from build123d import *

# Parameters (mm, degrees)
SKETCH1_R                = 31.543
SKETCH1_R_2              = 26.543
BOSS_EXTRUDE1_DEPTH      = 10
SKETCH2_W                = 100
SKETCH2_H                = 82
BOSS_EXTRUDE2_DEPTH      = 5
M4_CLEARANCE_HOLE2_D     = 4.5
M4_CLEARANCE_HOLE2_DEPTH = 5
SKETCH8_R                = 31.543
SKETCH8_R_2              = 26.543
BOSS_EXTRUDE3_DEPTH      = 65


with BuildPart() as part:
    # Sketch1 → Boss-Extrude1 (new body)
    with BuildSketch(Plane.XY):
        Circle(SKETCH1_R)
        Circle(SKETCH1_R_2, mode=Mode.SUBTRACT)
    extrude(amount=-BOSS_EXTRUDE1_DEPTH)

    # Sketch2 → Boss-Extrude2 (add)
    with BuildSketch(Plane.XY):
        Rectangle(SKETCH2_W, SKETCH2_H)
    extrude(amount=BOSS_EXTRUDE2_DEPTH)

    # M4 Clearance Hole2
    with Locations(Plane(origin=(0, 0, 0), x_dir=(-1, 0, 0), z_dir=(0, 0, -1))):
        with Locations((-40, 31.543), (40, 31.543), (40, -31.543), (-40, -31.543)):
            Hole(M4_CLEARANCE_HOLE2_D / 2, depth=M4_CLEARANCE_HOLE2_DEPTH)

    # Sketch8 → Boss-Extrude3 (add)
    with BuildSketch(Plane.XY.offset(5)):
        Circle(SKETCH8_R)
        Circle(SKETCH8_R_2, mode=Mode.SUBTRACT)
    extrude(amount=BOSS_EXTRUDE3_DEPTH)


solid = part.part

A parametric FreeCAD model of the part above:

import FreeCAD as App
import Part
import Sketcher
from FreeCAD import Vector

doc = App.newDocument("Part")
body = doc.addObject("PartDesign::Body", "Body")

# Sketch on XY plane
sketch1 = body.newObject("Sketcher::SketchObject", "Sketch")
sketch1.AttachmentSupport = (doc.getObject("XY_Plane"), [""])
sketch1.MapMode = "FlatFace"
sketch1.addGeometry(Part.Circle(Vector(0, 0, 0), Vector(0, 0, 1), 32), False)
sketch1.addGeometry(Part.Circle(Vector(0, 0, 0), Vector(0, 0, 1), 27), False)
sketch1.addConstraint(Sketcher.Constraint("Coincident", 0, 3, -1, 1))
sketch1.addConstraint(Sketcher.Constraint("Coincident", 1, 3, -1, 1))
sketch1.addConstraint(Sketcher.Constraint("Diameter", 0, 63.086))
sketch1.addConstraint(Sketcher.Constraint("Diameter", 1, 53.086))
pad1 = body.newObject("PartDesign::Pad", "Pad")
pad1.Profile = sketch1
pad1.Length = 10
pad1.Reversed = True

# Sketch on XY plane
sketch2 = body.newObject("Sketcher::SketchObject", "Sketch001")
sketch2.AttachmentSupport = (doc.getObject("XY_Plane"), [""])
sketch2.MapMode = "FlatFace"
sketch2.addGeometry(Part.LineSegment(Vector(-50, 41, 0), Vector(-50, -41, 0)), False)
sketch2.addGeometry(Part.LineSegment(Vector(-50, -41, 0), Vector(50, -41, 0)), False)
sketch2.addGeometry(Part.LineSegment(Vector(50, -41, 0), Vector(50, 41, 0)), False)
sketch2.addGeometry(Part.LineSegment(Vector(50, 41, 0), Vector(-50, 41, 0)), False)
sketch2.addConstraint(Sketcher.Constraint("Coincident", 0, 2, 1, 1))
sketch2.addConstraint(Sketcher.Constraint("Coincident", 1, 2, 2, 1))
sketch2.addConstraint(Sketcher.Constraint("Coincident", 2, 2, 3, 1))
sketch2.addConstraint(Sketcher.Constraint("Coincident", 3, 2, 0, 1))
sketch2.addConstraint(Sketcher.Constraint("Vertical", 0))
sketch2.addConstraint(Sketcher.Constraint("Horizontal", 1))
sketch2.addConstraint(Sketcher.Constraint("Vertical", 2))
sketch2.addConstraint(Sketcher.Constraint("Horizontal", 3))
sketch2.addConstraint(Sketcher.Constraint("Symmetric", 0, 2, 2, 2, -1, 1))
sketch2.addConstraint(Sketcher.Constraint("DistanceX", 1, 1, 1, 2, 100.0))
sketch2.addConstraint(Sketcher.Constraint("DistanceY", 0, 2, 0, 1, 82.0))
pad2 = body.newObject("PartDesign::Pad", "Pad001")
pad2.Profile = sketch2
pad2.Length = 5

# Sketch on XY plane
sketch3 = body.newObject("Sketcher::SketchObject", "Sketch002")
sketch3.AttachmentSupport = (doc.getObject("XY_Plane"), [""])
sketch3.MapMode = "FlatFace"
sketch3.addGeometry(Part.Circle(Vector(40, 31.5, 0), Vector(0, 0, 1), 2.2), False)
sketch3.addGeometry(Part.Circle(Vector(-40, 31.5, 0), Vector(0, 0, 1), 2.2), False)
sketch3.addGeometry(Part.Circle(Vector(-40, -31.5, 0), Vector(0, 0, 1), 2.2), False)
sketch3.addGeometry(Part.Circle(Vector(40, -31.5, 0), Vector(0, 0, 1), 2.2), False)
sketch3.addConstraint(Sketcher.Constraint("Equal", 0, 1))
sketch3.addConstraint(Sketcher.Constraint("Equal", 1, 2))
sketch3.addConstraint(Sketcher.Constraint("Equal", 2, 3))
sketch3.addConstraint(Sketcher.Constraint("Symmetric", 0, 3, 2, 3, -1, 1))
sketch3.addConstraint(Sketcher.Constraint("Symmetric", 1, 3, 3, 3, -1, 1))
sketch3.addConstraint(Sketcher.Constraint("Symmetric", 0, 3, 1, 3, -2))
sketch3.addConstraint(Sketcher.Constraint("Diameter", 0, 4.5))
sketch3.addConstraint(Sketcher.Constraint("DistanceX", -1, 1, 0, 3, 40.0))
sketch3.addConstraint(Sketcher.Constraint("DistanceY", -1, 1, 0, 3, 31.543))
doc.recompute()
hole = body.newObject("PartDesign::Hole", "Hole")
hole.Profile = sketch3
hole.ThreadType = "None"
hole.Diameter = 4.5
hole.DepthType = "Dimension"
hole.Depth = 5
hole.DrillPoint = "Flat"
hole.Reversed = True

# Sketch on XY plane
sketch4 = body.newObject("Sketcher::SketchObject", "Sketch003")
sketch4.AttachmentSupport = (doc.getObject("XY_Plane"), [""])
sketch4.MapMode = "FlatFace"
sketch4.AttachmentOffset = App.Placement(Vector(0, 0, 5), App.Rotation())
sketch4.addGeometry(Part.Circle(Vector(0, 0, 0), Vector(0, 0, 1), 32), False)
sketch4.addGeometry(Part.Circle(Vector(0, 0, 0), Vector(0, 0, 1), 27), False)
sketch4.addConstraint(Sketcher.Constraint("Coincident", 0, 3, -1, 1))
sketch4.addConstraint(Sketcher.Constraint("Coincident", 1, 3, -1, 1))
sketch4.addConstraint(Sketcher.Constraint("Diameter", 0, 63.086))
sketch4.addConstraint(Sketcher.Constraint("Diameter", 1, 53.086))
pad3 = body.newObject("PartDesign::Pad", "Pad002")
pad3.Profile = sketch4
pad3.Length = 65

doc.recompute()
